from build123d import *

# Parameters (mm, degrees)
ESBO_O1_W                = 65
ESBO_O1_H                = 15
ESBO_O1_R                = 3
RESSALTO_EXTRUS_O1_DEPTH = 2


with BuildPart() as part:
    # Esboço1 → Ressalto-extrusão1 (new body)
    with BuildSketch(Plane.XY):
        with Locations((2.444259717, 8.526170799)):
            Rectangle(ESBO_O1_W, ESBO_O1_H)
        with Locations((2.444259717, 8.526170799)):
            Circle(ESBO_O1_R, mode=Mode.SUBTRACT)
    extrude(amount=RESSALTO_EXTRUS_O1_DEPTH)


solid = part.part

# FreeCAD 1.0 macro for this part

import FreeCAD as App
import Part
import Sketcher


def add_polygon(sketch, points):
    """Adds a closed chain of lines whose ends are joined by coincident constraints."""
    first, n = sketch.GeometryCount, len(points)
    for a, b in zip(points, points[1:] + points[:1]):
        sketch.addGeometry(Part.LineSegment(App.Vector(*a, 0), App.Vector(*b, 0)), False)
    for i in range(n):
        sketch.addConstraint(Sketcher.Constraint("Coincident", first + i, 2, first + (i + 1) % n, 1))

doc = App.newDocument("Part")
body = doc.addObject("PartDesign::Body", "Body")

# Sketch on XY plane
sketch1 = doc.addObject("Sketcher::SketchObject", "Sketch")
body.addObject(sketch1)
sketch1.AttachmentSupport = (doc.XY_Plane, [""])
sketch1.MapMode = "FlatFace"
add_polygon(sketch1, [(-30.05574, 16.026171), (-30.05574, 1.026171), (34.94426, 1.026171), (34.94426, 16.026171)])  # lines 0-3
sketch1.addGeometry(Part.Circle(App.Vector(2.44426, 8.526171, 0), App.Vector(0, 0, 1), 3), False)  # 4
sketch1.addConstraint(Sketcher.Constraint("Vertical", 0))
sketch1.addConstraint(Sketcher.Constraint("Horizontal", 1))
sketch1.addConstraint(Sketcher.Constraint("Vertical", 2))
sketch1.addConstraint(Sketcher.Constraint("Horizontal", 3))
sketch1.addConstraint(Sketcher.Constraint("Diameter", 4, 6.0))
sketch1.addConstraint(Sketcher.Constraint("DistanceX", 1, 1, 1, 2, 65.0))
sketch1.addConstraint(Sketcher.Constraint("DistanceY", 0, 2, 0, 1, 15.0))
sketch1.addConstraint(Sketcher.Constraint("DistanceX", 0, 2, 4, 3, 32.5))
sketch1.addConstraint(Sketcher.Constraint("DistanceY", 0, 2, 4, 3, 7.5))
sketch1.addConstraint(Sketcher.Constraint("DistanceX", -1, 1, 4, 3, 2.44426))
sketch1.addConstraint(Sketcher.Constraint("DistanceY", -1, 1, 4, 3, 8.526171))
pad1 = doc.addObject("PartDesign::Pad", "Pad")
body.addObject(pad1)
pad1.Profile = sketch1
pad1.Length = 2

doc.recompute()
